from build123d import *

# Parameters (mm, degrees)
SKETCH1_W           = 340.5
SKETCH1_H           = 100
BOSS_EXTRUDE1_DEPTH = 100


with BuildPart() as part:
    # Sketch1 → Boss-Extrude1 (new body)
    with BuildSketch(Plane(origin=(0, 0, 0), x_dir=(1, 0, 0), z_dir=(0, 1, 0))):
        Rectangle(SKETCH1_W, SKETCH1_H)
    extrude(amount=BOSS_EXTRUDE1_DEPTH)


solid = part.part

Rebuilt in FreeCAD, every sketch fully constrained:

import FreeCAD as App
import Part
import Sketcher


def add_polygon(sketch, points):
    """Adds a closed chain of lines whose ends are joined by coincident constraints."""
    first, n = sketch.GeometryCount, len(points)
    for a, b in zip(points, points[1:] + points[:1]):
        sketch.addGeometry(Part.LineSegment(App.Vector(*a, 0), App.Vector(*b, 0)), False)
    for i in range(n):
        sketch.addConstraint(Sketcher.Constraint("Coincident", first + i, 2, first + (i + 1) % n, 1))

doc = App.newDocument("Part")
body = doc.addObject("PartDesign::Body", "Body")

# Sketch on XZ plane
sketch1 = doc.addObject("Sketcher::SketchObject", "Sketch")
body.addObject(sketch1)
sketch1.AttachmentSupport = (doc.XZ_Plane, [""])
sketch1.MapMode = "FlatFace"
add_polygon(sketch1, [(-170, -50), (-170, 50), (170, 50), (170, -50)])  # lines 0-3
sketch1.addConstraint([
    Sketcher.Constraint("Vertical", 0),
    Sketcher.Constraint("Horizontal", 1),
    Sketcher.Constraint("Vertical", 2),
    Sketcher.Constraint("Horizontal", 3),
    Sketcher.Constraint("Symmetric", 0, 2, 2, 2, -1, 1),
    Sketcher.Constraint("DistanceY", 0, 1, 0, 2, 100.0),
    Sketcher.Constraint("DistanceX", 1, 1, 1, 2, 340.5),
])
pad1 = doc.addObject("PartDesign::Pad", "Pad")
body.addObject(pad1)
pad1.Profile = sketch1
pad1.Length = 100
pad1.Reversed = True

doc.recompute()
